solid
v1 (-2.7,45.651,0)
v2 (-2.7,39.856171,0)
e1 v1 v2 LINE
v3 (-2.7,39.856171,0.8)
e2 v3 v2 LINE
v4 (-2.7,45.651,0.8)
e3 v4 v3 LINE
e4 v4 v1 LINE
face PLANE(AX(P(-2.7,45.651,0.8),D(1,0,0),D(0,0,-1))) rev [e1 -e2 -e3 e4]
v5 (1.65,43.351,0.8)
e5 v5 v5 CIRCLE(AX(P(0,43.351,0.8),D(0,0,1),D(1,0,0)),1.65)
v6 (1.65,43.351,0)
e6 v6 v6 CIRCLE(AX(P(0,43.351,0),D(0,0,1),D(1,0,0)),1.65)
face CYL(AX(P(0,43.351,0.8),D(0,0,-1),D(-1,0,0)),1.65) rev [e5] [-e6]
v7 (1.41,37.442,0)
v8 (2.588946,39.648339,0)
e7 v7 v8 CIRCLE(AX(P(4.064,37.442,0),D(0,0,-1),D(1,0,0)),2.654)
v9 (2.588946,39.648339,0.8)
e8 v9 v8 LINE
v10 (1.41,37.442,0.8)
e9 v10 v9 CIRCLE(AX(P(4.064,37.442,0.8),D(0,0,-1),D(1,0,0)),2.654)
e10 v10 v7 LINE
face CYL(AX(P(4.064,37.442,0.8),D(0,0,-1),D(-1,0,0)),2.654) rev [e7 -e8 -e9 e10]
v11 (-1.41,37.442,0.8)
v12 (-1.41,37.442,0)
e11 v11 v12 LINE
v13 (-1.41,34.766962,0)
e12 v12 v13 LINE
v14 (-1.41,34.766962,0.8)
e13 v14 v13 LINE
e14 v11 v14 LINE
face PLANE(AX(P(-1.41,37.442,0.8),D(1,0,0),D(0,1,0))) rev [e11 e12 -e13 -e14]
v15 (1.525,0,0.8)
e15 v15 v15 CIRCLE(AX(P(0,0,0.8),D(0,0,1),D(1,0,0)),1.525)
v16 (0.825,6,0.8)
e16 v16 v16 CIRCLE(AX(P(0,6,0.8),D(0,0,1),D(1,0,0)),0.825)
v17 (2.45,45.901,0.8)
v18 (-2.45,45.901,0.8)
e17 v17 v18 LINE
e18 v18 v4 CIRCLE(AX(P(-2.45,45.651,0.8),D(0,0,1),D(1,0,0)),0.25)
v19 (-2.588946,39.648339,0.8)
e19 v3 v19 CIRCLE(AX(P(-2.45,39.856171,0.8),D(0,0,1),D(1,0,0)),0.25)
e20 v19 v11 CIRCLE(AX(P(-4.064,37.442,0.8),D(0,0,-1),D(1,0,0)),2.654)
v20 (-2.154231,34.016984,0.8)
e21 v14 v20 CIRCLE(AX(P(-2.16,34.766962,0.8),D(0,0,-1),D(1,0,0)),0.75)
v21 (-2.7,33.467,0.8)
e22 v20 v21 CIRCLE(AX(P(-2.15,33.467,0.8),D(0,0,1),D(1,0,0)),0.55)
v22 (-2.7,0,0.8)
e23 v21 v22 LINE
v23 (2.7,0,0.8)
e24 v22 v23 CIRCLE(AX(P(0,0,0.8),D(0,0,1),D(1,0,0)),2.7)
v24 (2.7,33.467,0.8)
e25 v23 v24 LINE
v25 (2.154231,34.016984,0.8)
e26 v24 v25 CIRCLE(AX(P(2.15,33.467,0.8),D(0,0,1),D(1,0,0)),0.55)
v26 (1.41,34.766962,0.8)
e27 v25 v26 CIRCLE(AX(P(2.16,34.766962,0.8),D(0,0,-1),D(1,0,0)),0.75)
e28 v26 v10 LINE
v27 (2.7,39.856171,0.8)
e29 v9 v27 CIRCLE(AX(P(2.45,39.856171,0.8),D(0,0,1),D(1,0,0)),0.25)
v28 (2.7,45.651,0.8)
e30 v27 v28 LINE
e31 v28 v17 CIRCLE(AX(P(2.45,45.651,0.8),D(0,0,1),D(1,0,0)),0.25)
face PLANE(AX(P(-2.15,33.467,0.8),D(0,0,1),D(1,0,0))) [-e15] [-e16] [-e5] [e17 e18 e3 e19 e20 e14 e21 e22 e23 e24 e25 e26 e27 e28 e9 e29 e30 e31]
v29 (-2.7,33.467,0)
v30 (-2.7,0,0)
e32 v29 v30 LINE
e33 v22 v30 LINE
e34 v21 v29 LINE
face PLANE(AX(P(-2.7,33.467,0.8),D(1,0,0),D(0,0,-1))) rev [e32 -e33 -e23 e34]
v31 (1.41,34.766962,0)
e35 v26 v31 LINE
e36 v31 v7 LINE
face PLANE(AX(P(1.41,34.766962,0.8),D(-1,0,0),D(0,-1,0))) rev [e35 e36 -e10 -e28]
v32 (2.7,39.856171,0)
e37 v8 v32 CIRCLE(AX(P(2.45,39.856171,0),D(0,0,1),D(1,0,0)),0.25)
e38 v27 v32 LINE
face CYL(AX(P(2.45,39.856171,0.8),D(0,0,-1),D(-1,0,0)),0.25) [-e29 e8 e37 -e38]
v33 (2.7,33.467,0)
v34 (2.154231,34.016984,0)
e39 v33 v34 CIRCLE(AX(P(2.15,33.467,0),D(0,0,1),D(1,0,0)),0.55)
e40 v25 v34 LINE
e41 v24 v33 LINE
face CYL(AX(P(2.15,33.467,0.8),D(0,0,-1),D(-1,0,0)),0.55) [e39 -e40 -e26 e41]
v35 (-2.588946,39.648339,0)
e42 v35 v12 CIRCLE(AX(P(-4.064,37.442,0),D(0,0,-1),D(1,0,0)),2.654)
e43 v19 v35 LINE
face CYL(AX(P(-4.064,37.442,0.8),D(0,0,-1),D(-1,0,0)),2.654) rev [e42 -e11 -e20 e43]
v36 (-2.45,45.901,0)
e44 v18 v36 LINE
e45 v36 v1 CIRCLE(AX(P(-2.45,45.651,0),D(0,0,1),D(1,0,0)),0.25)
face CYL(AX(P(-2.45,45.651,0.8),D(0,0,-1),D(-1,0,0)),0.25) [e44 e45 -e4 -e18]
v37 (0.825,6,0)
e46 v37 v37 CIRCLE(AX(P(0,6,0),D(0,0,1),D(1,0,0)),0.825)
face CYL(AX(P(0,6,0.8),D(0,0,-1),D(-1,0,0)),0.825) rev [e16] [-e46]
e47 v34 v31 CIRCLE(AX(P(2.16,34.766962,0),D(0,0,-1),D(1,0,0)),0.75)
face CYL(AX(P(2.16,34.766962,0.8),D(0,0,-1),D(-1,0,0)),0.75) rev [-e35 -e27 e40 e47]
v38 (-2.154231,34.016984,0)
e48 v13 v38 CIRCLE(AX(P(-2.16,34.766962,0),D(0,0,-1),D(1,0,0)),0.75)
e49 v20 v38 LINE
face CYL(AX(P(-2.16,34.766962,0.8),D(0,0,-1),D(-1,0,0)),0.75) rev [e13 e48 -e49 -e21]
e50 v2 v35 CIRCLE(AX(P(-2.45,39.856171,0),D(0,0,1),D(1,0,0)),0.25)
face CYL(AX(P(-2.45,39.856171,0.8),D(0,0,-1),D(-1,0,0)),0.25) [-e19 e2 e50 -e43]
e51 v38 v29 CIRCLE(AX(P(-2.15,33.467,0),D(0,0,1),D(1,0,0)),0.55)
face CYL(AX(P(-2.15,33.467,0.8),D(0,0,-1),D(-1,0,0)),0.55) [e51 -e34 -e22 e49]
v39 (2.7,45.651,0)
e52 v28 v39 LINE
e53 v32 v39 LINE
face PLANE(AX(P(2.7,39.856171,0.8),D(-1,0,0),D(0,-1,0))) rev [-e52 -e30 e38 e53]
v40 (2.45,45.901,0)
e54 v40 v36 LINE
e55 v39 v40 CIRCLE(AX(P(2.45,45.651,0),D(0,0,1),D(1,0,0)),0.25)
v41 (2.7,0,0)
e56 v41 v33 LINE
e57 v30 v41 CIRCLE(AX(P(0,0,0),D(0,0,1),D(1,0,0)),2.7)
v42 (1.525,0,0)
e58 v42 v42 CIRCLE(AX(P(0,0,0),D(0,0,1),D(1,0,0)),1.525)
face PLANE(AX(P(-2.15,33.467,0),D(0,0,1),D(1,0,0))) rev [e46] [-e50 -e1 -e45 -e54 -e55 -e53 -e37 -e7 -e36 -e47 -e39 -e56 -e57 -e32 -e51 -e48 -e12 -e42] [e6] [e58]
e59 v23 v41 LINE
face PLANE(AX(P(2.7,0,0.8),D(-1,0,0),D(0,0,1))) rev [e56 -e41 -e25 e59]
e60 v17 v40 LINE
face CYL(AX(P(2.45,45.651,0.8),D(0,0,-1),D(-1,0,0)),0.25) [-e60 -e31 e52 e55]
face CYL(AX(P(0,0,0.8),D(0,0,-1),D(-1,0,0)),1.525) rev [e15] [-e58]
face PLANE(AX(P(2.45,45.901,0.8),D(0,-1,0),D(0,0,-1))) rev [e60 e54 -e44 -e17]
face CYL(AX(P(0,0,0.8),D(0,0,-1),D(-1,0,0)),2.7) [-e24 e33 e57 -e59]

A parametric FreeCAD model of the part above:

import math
import FreeCAD as App
import Part
import Sketcher
from FreeCAD import Vector

doc = App.newDocument("Part")
body = doc.addObject("PartDesign::Body", "Body")

# Sketch on XY plane
sketch1 = body.newObject("Sketcher::SketchObject", "Sketch")
sketch1.AttachmentSupport = (doc.getObject("XY_Plane"), [""])
sketch1.MapMode = "FlatFace"
sketch1.addGeometry(Part.LineSegment(Vector(-2.7, 33.467, 0), Vector(-2.7, 0, 0)), False)
sketch1.addGeometry(Part.ArcOfCircle(Part.Circle(Vector(0, 0, 0), Vector(0, 0, 1), 2.7), math.radians(180), math.radians(360)), False)
sketch1.addGeometry(Part.LineSegment(Vector(2.7, 0, 0), Vector(2.7, 33.467, 0)), False)
sketch1.addGeometry(Part.ArcOfCircle(Part.Circle(Vector(2.15, 33.467, 0), Vector(0, 0, 1), 0.55), math.radians(0), math.radians(89.559259)), False)
sketch1.addGeometry(Part.ArcOfCircle(Part.Circle(Vector(2.16, 34.766962, 0), Vector(0, 0, 1), 0.75), math.radians(-180), math.radians(-90.440741)), False)
sketch1.addGeometry(Part.LineSegment(Vector(1.41, 34.766962, 0), Vector(1.41, 37.442, 0)), False)
sketch1.addGeometry(Part.ArcOfCircle(Part.Circle(Vector(4.064, 37.442, 0), Vector(0, 0, 1), 2.654), math.radians(123.764809), math.radians(180)), False)
sketch1.addGeometry(Part.ArcOfCircle(Part.Circle(Vector(2.45, 39.856171, 0), Vector(0, 0, 1), 0.25), math.radians(-56.23519), math.radians(0)), False)
sketch1.addGeometry(Part.LineSegment(Vector(2.7, 39.856171, 0), Vector(2.7, 45.651, 0)), False)
sketch1.addGeometry(Part.ArcOfCircle(Part.Circle(Vector(2.45, 45.651, 0), Vector(0, 0, 1), 0.25), math.radians(0), math.radians(90)), False)
sketch1.addGeometry(Part.LineSegment(Vector(2.45, 45.901, 0), Vector(-2.45, 45.901, 0)), False)
sketch1.addGeometry(Part.ArcOfCircle(Part.Circle(Vector(-2.45, 45.651, 0), Vector(0, 0, 1), 0.25), math.radians(90), math.radians(180)), False)
sketch1.addGeometry(Part.LineSegment(Vector(-2.7, 45.651, 0), Vector(-2.7, 39.856171, 0)), False)
sketch1.addGeometry(Part.ArcOfCircle(Part.Circle(Vector(-2.45, 39.856171, 0), Vector(0, 0, 1), 0.25), math.radians(-180), math.radians(-123.76481)), False)
sketch1.addGeometry(Part.ArcOfCircle(Part.Circle(Vector(-4.064, 37.442, 0), Vector(0, 0, 1), 2.654), math.radians(0), math.radians(56.235191)), False)
sketch1.addGeometry(Part.LineSegment(Vector(-1.41, 37.442, 0), Vector(-1.41, 34.766962, 0)), False)
sketch1.addGeometry(Part.ArcOfCircle(Part.Circle(Vector(-2.16, 34.766962, 0), Vector(0, 0, 1), 0.75), math.radians(-89.559259), math.radians(0)), False)
sketch1.addGeometry(Part.ArcOfCircle(Part.Circle(Vector(-2.15, 33.467, 0), Vector(0, 0, 1), 0.55), math.radians(90.440741), math.radians(180)), False)
sketch1.addGeometry(Part.Circle(Vector(0, 0, 0), Vector(0, 0, 1), 1.525), False)
sketch1.addGeometry(Part.Circle(Vector(0, 6, 0), Vector(0, 0, 1), 0.825), False)
sketch1.addGeometry(Part.Circle(Vector(0, 43.351, 0), Vector(0, 0, 1), 1.65), False)
sketch1.addConstraint(Sketcher.Constraint("Tangent", 0, 2, 1, 1))
sketch1.addConstraint(Sketcher.Constraint("Tangent", 1, 2, 2, 1))
sketch1.addConstraint(Sketcher.Constraint("Tangent", 2, 2, 3, 1))
sketch1.addConstraint(Sketcher.Constraint("Tangent", 3, 2, 4, 2))
sketch1.addConstraint(Sketcher.Constraint("Tangent", 4, 1, 5, 1))
sketch1.addConstraint(Sketcher.Constraint("Tangent", 5, 2, 6, 2))
sketch1.addConstraint(Sketcher.Constraint("Tangent", 6, 1, 7, 1))
sketch1.addConstraint(Sketcher.Constraint("Tangent", 7, 2, 8, 1))
sketch1.addConstraint(Sketcher.Constraint("Tangent", 8, 2, 9, 1))
sketch1.addConstraint(Sketcher.Constraint("Tangent", 9, 2, 10, 1))
sketch1.addConstraint(Sketcher.Constraint("Tangent", 10, 2, 11, 1))
sketch1.addConstraint(Sketcher.Constraint("Tangent", 11, 2, 12, 1))
sketch1.addConstraint(Sketcher.Constraint("Tangent", 12, 2, 13, 1))
sketch1.addConstraint(Sketcher.Constraint("Tangent", 13, 2, 14, 2))
sketch1.addConstraint(Sketcher.Constraint("Tangent", 14, 1, 15, 1))
sketch1.addConstraint(Sketcher.Constraint("Tangent", 15, 2, 16, 2))
sketch1.addConstraint(Sketcher.Constraint("Tangent", 16, 1, 17, 1))
sketch1.addConstraint(Sketcher.Constraint("Tangent", 17, 2, 0, 1))
sketch1.addConstraint(Sketcher.Constraint("Vertical", 0))
sketch1.addConstraint(Sketcher.Constraint("Vertical", 2))
sketch1.addConstraint(Sketcher.Constraint("Vertical", 5))
sketch1.addConstraint(Sketcher.Constraint("Vertical", 8))
sketch1.addConstraint(Sketcher.Constraint("Horizontal", 10))
sketch1.addConstraint(Sketcher.Constraint("Vertical", 12))
sketch1.addConstraint(Sketcher.Constraint("Vertical", 15))
sketch1.addConstraint(Sketcher.Constraint("Coincident", 1, 3, -1, 1))
sketch1.addConstraint(Sketcher.Constraint("Coincident", 18, 3, -1, 1))
sketch1.addConstraint(Sketcher.Constraint("Equal", 7, 9))
sketch1.addConstraint(Sketcher.Constraint("Equal", 9, 11))
sketch1.addConstraint(Sketcher.Constraint("Equal", 11, 13))
sketch1.addConstraint(Sketcher.Constraint("Equal", 6, 14))
sketch1.addConstraint(Sketcher.Constraint("Equal", 4, 16))
sketch1.addConstraint(Sketcher.Constraint("Equal", 3, 17))
sketch1.addConstraint(Sketcher.Constraint("Symmetric", 7, 3, 13, 3, -2))
sketch1.addConstraint(Sketcher.Constraint("Symmetric", 4, 3, 16, 3, -2))
sketch1.addConstraint(Sketcher.Constraint("PointOnObject", 19, 3, -2))
sketch1.addConstraint(Sketcher.Constraint("PointOnObject", 20, 3, -2))
sketch1.addConstraint(Sketcher.Constraint("Vertical", 2, 2, 7, 2))
sketch1.addConstraint(Sketcher.Constraint("Diameter", 20, 3.3))
sketch1.addConstraint(Sketcher.Constraint("Radius", 1, 2.7))
sketch1.addConstraint(Sketcher.Constraint("Diameter", 18, 3.05))
sketch1.addConstraint(Sketcher.Constraint("Diameter", 19, 1.65))
sketch1.addConstraint(Sketcher.Constraint("Radius", 3, 0.55))
sketch1.addConstraint(Sketcher.Constraint("Radius", 4, 0.75))
sketch1.addConstraint(Sketcher.Constraint("Radius", 7, 0.25))
sketch1.addConstraint(Sketcher.Constraint("DistanceY", -1, 1, 19, 3, 6.0))
sketch1.addConstraint(Sketcher.Constraint("Radius", 6, 2.654))
sketch1.addConstraint(Sketcher.Constraint("DistanceY", 20, 3, 9, 3, 2.3))
sketch1.addConstraint(Sketcher.Constraint("DistanceY", 0, 2, 0, 1, 33.467))
sketch1.addConstraint(Sketcher.Constraint("DistanceX", -1, 1, 4, 3, 2.16))
sketch1.addConstraint(Sketcher.Constraint("DistanceY", -1, 1, 6, 3, 37.442))
sketch1.addConstraint(Sketcher.Constraint("DistanceY", -1, 1, 9, 3, 45.651))
pad1 = body.newObject("PartDesign::Pad", "Pad")
pad1.Profile = sketch1
pad1.Length = 0.8

doc.recompute()
